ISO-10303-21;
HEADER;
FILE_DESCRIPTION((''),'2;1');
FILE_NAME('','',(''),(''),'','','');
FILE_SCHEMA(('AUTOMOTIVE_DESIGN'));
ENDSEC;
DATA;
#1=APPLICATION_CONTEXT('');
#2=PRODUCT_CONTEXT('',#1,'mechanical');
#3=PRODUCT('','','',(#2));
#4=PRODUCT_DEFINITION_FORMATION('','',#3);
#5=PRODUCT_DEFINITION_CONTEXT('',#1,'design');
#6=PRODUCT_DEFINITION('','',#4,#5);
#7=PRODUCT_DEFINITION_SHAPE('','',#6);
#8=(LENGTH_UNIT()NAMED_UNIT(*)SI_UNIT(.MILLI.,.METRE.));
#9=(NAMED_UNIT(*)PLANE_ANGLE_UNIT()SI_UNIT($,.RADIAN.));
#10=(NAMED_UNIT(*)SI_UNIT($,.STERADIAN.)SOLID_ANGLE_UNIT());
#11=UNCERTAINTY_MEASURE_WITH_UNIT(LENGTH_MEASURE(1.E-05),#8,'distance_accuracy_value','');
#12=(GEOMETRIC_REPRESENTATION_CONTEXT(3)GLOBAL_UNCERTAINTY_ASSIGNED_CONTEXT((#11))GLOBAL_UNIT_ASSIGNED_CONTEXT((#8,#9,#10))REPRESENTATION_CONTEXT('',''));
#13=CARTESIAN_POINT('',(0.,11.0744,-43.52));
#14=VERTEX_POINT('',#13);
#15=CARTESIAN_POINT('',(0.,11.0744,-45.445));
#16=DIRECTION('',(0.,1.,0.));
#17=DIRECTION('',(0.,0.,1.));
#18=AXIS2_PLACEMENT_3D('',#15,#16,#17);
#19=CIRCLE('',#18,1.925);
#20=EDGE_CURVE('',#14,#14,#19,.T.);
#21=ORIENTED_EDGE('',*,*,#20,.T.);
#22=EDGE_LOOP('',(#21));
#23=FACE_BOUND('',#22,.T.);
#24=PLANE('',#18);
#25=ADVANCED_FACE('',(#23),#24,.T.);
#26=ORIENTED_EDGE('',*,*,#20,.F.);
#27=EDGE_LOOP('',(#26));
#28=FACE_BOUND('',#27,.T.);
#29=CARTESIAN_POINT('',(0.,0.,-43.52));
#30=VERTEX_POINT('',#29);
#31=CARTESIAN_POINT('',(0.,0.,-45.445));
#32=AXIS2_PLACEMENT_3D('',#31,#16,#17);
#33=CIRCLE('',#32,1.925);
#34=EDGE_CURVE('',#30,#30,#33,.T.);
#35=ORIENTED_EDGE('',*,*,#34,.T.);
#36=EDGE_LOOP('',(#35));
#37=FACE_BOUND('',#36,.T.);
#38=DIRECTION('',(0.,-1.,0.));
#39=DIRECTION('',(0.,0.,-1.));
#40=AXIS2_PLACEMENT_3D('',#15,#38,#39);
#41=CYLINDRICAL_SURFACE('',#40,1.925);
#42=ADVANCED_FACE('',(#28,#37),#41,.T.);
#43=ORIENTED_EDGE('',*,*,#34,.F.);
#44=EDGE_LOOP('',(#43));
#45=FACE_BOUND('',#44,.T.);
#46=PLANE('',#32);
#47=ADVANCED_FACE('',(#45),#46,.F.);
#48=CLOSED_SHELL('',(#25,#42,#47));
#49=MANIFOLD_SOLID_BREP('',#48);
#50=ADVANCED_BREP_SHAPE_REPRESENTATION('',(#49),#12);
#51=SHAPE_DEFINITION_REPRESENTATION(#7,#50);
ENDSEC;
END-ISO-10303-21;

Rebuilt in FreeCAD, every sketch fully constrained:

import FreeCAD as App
import Part
import Sketcher
from FreeCAD import Vector
Q = App.Units.Quantity

doc = App.newDocument("Part")
body = doc.addObject("PartDesign::Body", "Body")

sketch1 = body.newObject("Sketcher::SketchObject", "Sketch")
sketch1.AttachmentSupport = (doc.getObject("XZ_Plane"), [""])
sketch1.MapMode = "FlatFace"
sketch1.addGeometry(Part.Circle(Vector(0, -45.445, 0), Vector(0, 0, 1), 1.925), False)
sketch1.addConstraint([
    Sketcher.Constraint("PointOnObject", 0, 3, -2),
    Sketcher.Constraint("Diameter", 0, Q("3.85 mm")),
    Sketcher.Constraint("DistanceY", 0, 3, -1, 1, Q("45.445 mm")),
])
pad1 = body.newObject("PartDesign::Pad", "Pad")
pad1.Profile = sketch1
pad1.Length = Q("0.436 in")
pad1.Reversed = True

doc.recompute()
